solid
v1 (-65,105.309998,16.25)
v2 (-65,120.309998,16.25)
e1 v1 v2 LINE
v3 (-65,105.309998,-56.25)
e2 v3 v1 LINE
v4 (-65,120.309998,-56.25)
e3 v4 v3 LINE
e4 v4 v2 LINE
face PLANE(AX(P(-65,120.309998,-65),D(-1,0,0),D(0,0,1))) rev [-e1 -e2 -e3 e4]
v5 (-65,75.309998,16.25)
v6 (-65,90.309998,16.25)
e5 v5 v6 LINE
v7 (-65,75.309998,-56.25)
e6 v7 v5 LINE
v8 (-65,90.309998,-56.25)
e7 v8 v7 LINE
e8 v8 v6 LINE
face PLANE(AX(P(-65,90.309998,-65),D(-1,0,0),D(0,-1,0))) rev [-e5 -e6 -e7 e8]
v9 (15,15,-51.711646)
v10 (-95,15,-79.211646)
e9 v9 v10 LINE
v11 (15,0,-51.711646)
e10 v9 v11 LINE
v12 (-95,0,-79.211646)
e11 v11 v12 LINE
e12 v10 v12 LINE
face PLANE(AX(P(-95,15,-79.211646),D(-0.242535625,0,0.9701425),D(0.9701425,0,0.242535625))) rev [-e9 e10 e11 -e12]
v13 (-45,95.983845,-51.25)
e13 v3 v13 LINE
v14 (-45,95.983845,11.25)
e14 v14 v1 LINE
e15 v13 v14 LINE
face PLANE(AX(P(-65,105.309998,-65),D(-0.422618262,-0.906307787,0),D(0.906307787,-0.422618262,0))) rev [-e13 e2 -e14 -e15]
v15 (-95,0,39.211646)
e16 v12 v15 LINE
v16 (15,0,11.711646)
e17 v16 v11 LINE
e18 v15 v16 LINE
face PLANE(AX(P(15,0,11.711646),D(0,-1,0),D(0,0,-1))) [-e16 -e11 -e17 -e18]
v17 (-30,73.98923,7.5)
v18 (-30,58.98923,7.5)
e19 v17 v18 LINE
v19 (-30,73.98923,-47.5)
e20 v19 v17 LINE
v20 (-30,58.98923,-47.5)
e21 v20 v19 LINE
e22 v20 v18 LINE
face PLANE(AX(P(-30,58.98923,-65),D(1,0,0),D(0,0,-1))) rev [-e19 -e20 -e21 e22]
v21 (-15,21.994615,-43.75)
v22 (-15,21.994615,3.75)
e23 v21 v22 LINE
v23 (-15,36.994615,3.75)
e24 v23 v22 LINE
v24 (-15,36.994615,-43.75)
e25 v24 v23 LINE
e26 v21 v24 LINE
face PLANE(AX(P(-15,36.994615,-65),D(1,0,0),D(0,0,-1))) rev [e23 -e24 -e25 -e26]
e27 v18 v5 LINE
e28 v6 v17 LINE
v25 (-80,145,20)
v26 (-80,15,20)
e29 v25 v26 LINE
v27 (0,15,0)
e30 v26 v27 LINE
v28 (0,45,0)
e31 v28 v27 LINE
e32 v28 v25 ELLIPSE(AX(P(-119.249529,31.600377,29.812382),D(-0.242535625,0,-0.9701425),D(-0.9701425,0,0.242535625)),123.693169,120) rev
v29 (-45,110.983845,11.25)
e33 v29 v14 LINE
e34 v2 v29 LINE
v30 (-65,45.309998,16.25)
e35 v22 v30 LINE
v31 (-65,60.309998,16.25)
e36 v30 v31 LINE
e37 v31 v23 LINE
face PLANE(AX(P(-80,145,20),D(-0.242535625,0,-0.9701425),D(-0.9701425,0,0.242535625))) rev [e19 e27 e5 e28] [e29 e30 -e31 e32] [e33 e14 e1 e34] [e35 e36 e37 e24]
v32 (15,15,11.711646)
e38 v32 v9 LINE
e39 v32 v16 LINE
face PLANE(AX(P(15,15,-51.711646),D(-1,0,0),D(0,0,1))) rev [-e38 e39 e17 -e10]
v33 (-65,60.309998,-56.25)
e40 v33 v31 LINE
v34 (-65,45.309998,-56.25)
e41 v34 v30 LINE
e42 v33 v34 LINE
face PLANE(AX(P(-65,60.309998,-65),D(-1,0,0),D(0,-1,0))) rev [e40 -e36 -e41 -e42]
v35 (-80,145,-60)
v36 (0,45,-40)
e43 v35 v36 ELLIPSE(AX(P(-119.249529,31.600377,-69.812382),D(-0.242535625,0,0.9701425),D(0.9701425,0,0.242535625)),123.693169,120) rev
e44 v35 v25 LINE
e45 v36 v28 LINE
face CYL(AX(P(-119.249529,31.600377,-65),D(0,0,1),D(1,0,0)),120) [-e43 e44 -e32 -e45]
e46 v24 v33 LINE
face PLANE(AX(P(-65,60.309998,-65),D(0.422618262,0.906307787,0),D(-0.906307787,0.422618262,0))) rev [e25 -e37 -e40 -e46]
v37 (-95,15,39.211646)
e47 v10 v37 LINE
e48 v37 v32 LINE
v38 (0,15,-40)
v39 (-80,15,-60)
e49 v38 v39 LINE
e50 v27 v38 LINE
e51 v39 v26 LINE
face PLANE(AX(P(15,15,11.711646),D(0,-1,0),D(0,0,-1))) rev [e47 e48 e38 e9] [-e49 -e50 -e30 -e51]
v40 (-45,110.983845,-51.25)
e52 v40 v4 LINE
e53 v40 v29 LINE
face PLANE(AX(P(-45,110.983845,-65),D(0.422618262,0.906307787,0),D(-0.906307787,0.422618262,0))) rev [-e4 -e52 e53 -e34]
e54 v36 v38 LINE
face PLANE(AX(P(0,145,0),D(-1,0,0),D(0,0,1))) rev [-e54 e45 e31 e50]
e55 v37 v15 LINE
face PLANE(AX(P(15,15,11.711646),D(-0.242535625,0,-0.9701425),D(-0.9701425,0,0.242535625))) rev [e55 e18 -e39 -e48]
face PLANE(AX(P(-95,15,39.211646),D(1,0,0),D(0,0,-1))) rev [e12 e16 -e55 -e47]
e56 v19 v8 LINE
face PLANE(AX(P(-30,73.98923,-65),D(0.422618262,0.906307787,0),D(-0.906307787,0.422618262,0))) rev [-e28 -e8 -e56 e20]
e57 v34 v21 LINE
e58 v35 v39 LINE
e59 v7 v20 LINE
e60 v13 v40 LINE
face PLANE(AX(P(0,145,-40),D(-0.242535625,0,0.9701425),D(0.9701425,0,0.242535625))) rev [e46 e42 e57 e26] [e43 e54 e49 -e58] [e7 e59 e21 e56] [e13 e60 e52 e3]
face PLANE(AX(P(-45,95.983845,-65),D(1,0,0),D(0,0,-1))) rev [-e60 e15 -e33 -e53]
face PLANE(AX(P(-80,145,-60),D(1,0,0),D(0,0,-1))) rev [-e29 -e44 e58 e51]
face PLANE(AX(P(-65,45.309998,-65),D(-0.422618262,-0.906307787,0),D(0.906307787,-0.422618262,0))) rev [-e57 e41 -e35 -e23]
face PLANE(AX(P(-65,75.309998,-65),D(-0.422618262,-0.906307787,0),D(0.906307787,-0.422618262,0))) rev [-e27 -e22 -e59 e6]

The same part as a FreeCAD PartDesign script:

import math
import FreeCAD as App
import Part
import Sketcher

V = App.Vector
Q = App.Units.Quantity

doc = App.newDocument("Part")
body = doc.addObject("PartDesign::Body", "Body")

# Sketch on XZ plane
sketch1 = doc.addObject("Sketcher::SketchObject", "Sketch")
body.addObject(sketch1)
sketch1.AttachmentSupport = (doc.XZ_Plane, [""])
sketch1.MapMode = "FlatFace"
sketch1.addGeometry(Part.LineSegment(V(-95, 39, 0), V(15, 12, 0)), False)
sketch1.addGeometry(Part.LineSegment(V(15, 12, 0), V(15, -52, 0)), False)
sketch1.addGeometry(Part.LineSegment(V(15, -52, 0), V(-95, -79, 0)), False)
sketch1.addGeometry(Part.LineSegment(V(-95, -79, 0), V(-95, 39, 0)), False)
sketch1.addConstraint(Sketcher.Constraint("Coincident", 0, 2, 1, 1))
sketch1.addConstraint(Sketcher.Constraint("Coincident", 1, 2, 2, 1))
sketch1.addConstraint(Sketcher.Constraint("Coincident", 2, 2, 3, 1))
sketch1.addConstraint(Sketcher.Constraint("Coincident", 3, 2, 0, 1))
sketch1.addConstraint(Sketcher.Constraint("Vertical", 1))
sketch1.addConstraint(Sketcher.Constraint("Vertical", 3))
sketch1.addConstraint(Sketcher.Constraint("Equal", 0, 2))
sketch1.addConstraint(Sketcher.Constraint("DistanceX", -1, 1, 0, 2, 15.0))
sketch1.addConstraint(Sketcher.Constraint("DistanceX", 2, 2, -1, 1, 95.0))
sketch1.addConstraint(Sketcher.Constraint("DistanceY", 2, 2, 1, 2, 27.5))
sketch1.addConstraint(Sketcher.Constraint("DistanceY", 1, 2, 1, 1, 63.423292))
sketch1.addConstraint(Sketcher.Constraint("DistanceY", -1, 1, 0, 2, 11.711646))
pad1 = doc.addObject("PartDesign::Pad", "Pad")
body.addObject(pad1)
pad1.Profile = sketch1
pad1.Length = 15
pad1.Reversed = True

# Sketch on XZ plane
sketch2 = doc.addObject("Sketcher::SketchObject", "Sketch001")
body.addObject(sketch2)
sketch2.AttachmentSupport = (doc.XZ_Plane, [""])
sketch2.MapMode = "FlatFace"
sketch2.AttachmentOffset = App.Placement(V(0, 0, -15), App.Rotation())
sketch2.addGeometry(Part.LineSegment(V(0, 0, 0), V(0, -40, 0)), False)
sketch2.addGeometry(Part.LineSegment(V(0, -40, 0), V(-80, -60, 0)), False)
sketch2.addGeometry(Part.LineSegment(V(-80, -60, 0), V(-80, 20, 0)), False)
sketch2.addGeometry(Part.LineSegment(V(-80, 20, 0), V(0, 0, 0)), False)
sketch2.addConstraint(Sketcher.Constraint("Coincident", 0, 2, 1, 1))
sketch2.addConstraint(Sketcher.Constraint("Coincident", 1, 2, 2, 1))
sketch2.addConstraint(Sketcher.Constraint("Coincident", 2, 2, 3, 1))
sketch2.addConstraint(Sketcher.Constraint("Coincident", 3, 2, 0, 1))
sketch2.addConstraint(Sketcher.Constraint("Vertical", 0))
sketch2.addConstraint(Sketcher.Constraint("Vertical", 2))
sketch2.addConstraint(Sketcher.Constraint("Coincident", 3, 2, -1, 1))
sketch2.addConstraint(Sketcher.Constraint("Equal", 1, 3))
sketch2.addConstraint(Sketcher.Constraint("DistanceY", 0, 2, 0, 1, 40.0))
sketch2.addConstraint(Sketcher.Constraint("DistanceY", 2, 1, 2, 2, 80.0))
sketch2.addConstraint(Sketcher.Constraint("DistanceX", 1, 2, -1, 1, 80.0))
pad2 = doc.addObject("PartDesign::Pad", "Pad001")
body.addObject(pad2)
pad2.Profile = sketch2
pad2.Length = 130
pad2.Reversed = True

# Sketch on XY plane
sketch3 = doc.addObject("Sketcher::SketchObject", "Sketch002")
body.addObject(sketch3)
sketch3.AttachmentSupport = (doc.XY_Plane, [""])
sketch3.MapMode = "FlatFace"
sketch3.addGeometry(Part.LineSegment(V(0, 145, 0), V(-80, 145, 0)), False)
sketch3.addGeometry(Part.ArcOfCircle(Part.Circle(V(-119, 32, 0), V(0, 0, 1), 120), math.radians(6), math.radians(71)), False)
sketch3.addGeometry(Part.LineSegment(V(0, 45, 0), V(0, 145, 0)), False)
sketch3.addGeometry(Part.LineSegment(V(-65, 120, 0), V(-65, 105, 0)), False)
sketch3.addGeometry(Part.LineSegment(V(-65, 105, 0), V(-45, 96, 0)), False)
sketch3.addGeometry(Part.LineSegment(V(-45, 96, 0), V(-45, 111, 0)), False)
sketch3.addGeometry(Part.LineSegment(V(-45, 111, 0), V(-65, 120, 0)), False)
sketch3.addGeometry(Part.LineSegment(V(-65, 45, 0), V(-15, 22, 0)), False)
sketch3.addGeometry(Part.LineSegment(V(-15, 22, 0), V(-15, 37, 0)), False)
sketch3.addGeometry(Part.LineSegment(V(-15, 37, 0), V(-65, 60, 0)), False)
sketch3.addGeometry(Part.LineSegment(V(-65, 60, 0), V(-65, 45, 0)), False)
sketch3.addGeometry(Part.LineSegment(V(-65, 75, 0), V(-30, 59, 0)), False)
sketch3.addGeometry(Part.LineSegment(V(-30, 59, 0), V(-30, 74, 0)), False)
sketch3.addGeometry(Part.LineSegment(V(-30, 74, 0), V(-65, 90, 0)), False)
sketch3.addGeometry(Part.LineSegment(V(-65, 90, 0), V(-65, 75, 0)), False)
sketch3.addConstraint(Sketcher.Constraint("Coincident", 0, 2, 1, 2))
sketch3.addConstraint(Sketcher.Constraint("Coincident", 1, 1, 2, 1))
sketch3.addConstraint(Sketcher.Constraint("Coincident", 2, 2, 0, 1))
sketch3.addConstraint(Sketcher.Constraint("Coincident", 3, 2, 4, 1))
sketch3.addConstraint(Sketcher.Constraint("Coincident", 4, 2, 5, 1))
sketch3.addConstraint(Sketcher.Constraint("Coincident", 5, 2, 6, 1))
sketch3.addConstraint(Sketcher.Constraint("Coincident", 6, 2, 3, 1))
sketch3.addConstraint(Sketcher.Constraint("Coincident", 7, 2, 8, 1))
sketch3.addConstraint(Sketcher.Constraint("Coincident", 8, 2, 9, 1))
sketch3.addConstraint(Sketcher.Constraint("Coincident", 9, 2, 10, 1))
sketch3.addConstraint(Sketcher.Constraint("Coincident", 10, 2, 7, 1))
sketch3.addConstraint(Sketcher.Constraint("Coincident", 11, 2, 12, 1))
sketch3.addConstraint(Sketcher.Constraint("Coincident", 12, 2, 13, 1))
sketch3.addConstraint(Sketcher.Constraint("Coincident", 13, 2, 14, 1))
sketch3.addConstraint(Sketcher.Constraint("Coincident", 14, 2, 11, 1))
sketch3.addConstraint(Sketcher.Constraint("Horizontal", 0))
sketch3.addConstraint(Sketcher.Constraint("Vertical", 2))
sketch3.addConstraint(Sketcher.Constraint("Vertical", 3))
sketch3.addConstraint(Sketcher.Constraint("Vertical", 5))
sketch3.addConstraint(Sketcher.Constraint("Vertical", 8))
sketch3.addConstraint(Sketcher.Constraint("Vertical", 10))
sketch3.addConstraint(Sketcher.Constraint("Vertical", 12))
sketch3.addConstraint(Sketcher.Constraint("Vertical", 14))
sketch3.addConstraint(Sketcher.Constraint("PointOnObject", 1, 1, -2))
sketch3.addConstraint(Sketcher.Constraint("Parallel", 4, 6))
sketch3.addConstraint(Sketcher.Constraint("Parallel", 6, 7))
sketch3.addConstraint(Sketcher.Constraint("Parallel", 7, 9))
sketch3.addConstraint(Sketcher.Constraint("Parallel", 9, 11))
sketch3.addConstraint(Sketcher.Constraint("Parallel", 11, 13))
sketch3.addConstraint(Sketcher.Constraint("Vertical", 6, 2, 9, 2))
sketch3.addConstraint(Sketcher.Constraint("Vertical", 10, 2, 13, 2))
sketch3.addConstraint(Sketcher.Constraint("Equal", 5, 8))
sketch3.addConstraint(Sketcher.Constraint("Equal", 10, 12))
sketch3.addConstraint(Sketcher.Constraint("Radius", 1, 120.0))
sketch3.addConstraint(Sketcher.Constraint("DistanceX", 0, 2, 0, 1, 80.0))
sketch3.addConstraint(Sketcher.Constraint("DistanceY", 2, 1, 2, 2, 100.0))
sketch3.addConstraint(Sketcher.Constraint("DistanceY", 3, 2, 3, 1, 15.0))
sketch3.addConstraint(Sketcher.Constraint("Angle", 4, Q("-25 deg")))
sketch3.addConstraint(Sketcher.Constraint("DistanceY", -1, 1, 0, 2, 145.0))
sketch3.addConstraint(Sketcher.Constraint("DistanceX", 3, 2, -1, 1, 65.0))
sketch3.addConstraint(Sketcher.Constraint("DistanceX", 4, 2, -1, 1, 45.0))
sketch3.addConstraint(Sketcher.Constraint("DistanceX", 7, 2, -1, 1, 15.0))
sketch3.addConstraint(Sketcher.Constraint("DistanceX", 11, 2, -1, 1, 30.0))
sketch3.addConstraint(Sketcher.Constraint("DistanceY", 9, 2, 3, 2, 45.0))
sketch3.addConstraint(Sketcher.Constraint("DistanceY", 13, 2, 3, 2, 15.0))
sketch3.addConstraint(Sketcher.Constraint("DistanceY", -1, 1, 11, 2, 58.98923))
pocket1 = doc.addObject("PartDesign::Pocket", "Pocket")
body.addObject(pocket1)
pocket1.Profile = sketch3
pocket1.Length = 130
pocket1.Midplane = True

doc.recompute()
